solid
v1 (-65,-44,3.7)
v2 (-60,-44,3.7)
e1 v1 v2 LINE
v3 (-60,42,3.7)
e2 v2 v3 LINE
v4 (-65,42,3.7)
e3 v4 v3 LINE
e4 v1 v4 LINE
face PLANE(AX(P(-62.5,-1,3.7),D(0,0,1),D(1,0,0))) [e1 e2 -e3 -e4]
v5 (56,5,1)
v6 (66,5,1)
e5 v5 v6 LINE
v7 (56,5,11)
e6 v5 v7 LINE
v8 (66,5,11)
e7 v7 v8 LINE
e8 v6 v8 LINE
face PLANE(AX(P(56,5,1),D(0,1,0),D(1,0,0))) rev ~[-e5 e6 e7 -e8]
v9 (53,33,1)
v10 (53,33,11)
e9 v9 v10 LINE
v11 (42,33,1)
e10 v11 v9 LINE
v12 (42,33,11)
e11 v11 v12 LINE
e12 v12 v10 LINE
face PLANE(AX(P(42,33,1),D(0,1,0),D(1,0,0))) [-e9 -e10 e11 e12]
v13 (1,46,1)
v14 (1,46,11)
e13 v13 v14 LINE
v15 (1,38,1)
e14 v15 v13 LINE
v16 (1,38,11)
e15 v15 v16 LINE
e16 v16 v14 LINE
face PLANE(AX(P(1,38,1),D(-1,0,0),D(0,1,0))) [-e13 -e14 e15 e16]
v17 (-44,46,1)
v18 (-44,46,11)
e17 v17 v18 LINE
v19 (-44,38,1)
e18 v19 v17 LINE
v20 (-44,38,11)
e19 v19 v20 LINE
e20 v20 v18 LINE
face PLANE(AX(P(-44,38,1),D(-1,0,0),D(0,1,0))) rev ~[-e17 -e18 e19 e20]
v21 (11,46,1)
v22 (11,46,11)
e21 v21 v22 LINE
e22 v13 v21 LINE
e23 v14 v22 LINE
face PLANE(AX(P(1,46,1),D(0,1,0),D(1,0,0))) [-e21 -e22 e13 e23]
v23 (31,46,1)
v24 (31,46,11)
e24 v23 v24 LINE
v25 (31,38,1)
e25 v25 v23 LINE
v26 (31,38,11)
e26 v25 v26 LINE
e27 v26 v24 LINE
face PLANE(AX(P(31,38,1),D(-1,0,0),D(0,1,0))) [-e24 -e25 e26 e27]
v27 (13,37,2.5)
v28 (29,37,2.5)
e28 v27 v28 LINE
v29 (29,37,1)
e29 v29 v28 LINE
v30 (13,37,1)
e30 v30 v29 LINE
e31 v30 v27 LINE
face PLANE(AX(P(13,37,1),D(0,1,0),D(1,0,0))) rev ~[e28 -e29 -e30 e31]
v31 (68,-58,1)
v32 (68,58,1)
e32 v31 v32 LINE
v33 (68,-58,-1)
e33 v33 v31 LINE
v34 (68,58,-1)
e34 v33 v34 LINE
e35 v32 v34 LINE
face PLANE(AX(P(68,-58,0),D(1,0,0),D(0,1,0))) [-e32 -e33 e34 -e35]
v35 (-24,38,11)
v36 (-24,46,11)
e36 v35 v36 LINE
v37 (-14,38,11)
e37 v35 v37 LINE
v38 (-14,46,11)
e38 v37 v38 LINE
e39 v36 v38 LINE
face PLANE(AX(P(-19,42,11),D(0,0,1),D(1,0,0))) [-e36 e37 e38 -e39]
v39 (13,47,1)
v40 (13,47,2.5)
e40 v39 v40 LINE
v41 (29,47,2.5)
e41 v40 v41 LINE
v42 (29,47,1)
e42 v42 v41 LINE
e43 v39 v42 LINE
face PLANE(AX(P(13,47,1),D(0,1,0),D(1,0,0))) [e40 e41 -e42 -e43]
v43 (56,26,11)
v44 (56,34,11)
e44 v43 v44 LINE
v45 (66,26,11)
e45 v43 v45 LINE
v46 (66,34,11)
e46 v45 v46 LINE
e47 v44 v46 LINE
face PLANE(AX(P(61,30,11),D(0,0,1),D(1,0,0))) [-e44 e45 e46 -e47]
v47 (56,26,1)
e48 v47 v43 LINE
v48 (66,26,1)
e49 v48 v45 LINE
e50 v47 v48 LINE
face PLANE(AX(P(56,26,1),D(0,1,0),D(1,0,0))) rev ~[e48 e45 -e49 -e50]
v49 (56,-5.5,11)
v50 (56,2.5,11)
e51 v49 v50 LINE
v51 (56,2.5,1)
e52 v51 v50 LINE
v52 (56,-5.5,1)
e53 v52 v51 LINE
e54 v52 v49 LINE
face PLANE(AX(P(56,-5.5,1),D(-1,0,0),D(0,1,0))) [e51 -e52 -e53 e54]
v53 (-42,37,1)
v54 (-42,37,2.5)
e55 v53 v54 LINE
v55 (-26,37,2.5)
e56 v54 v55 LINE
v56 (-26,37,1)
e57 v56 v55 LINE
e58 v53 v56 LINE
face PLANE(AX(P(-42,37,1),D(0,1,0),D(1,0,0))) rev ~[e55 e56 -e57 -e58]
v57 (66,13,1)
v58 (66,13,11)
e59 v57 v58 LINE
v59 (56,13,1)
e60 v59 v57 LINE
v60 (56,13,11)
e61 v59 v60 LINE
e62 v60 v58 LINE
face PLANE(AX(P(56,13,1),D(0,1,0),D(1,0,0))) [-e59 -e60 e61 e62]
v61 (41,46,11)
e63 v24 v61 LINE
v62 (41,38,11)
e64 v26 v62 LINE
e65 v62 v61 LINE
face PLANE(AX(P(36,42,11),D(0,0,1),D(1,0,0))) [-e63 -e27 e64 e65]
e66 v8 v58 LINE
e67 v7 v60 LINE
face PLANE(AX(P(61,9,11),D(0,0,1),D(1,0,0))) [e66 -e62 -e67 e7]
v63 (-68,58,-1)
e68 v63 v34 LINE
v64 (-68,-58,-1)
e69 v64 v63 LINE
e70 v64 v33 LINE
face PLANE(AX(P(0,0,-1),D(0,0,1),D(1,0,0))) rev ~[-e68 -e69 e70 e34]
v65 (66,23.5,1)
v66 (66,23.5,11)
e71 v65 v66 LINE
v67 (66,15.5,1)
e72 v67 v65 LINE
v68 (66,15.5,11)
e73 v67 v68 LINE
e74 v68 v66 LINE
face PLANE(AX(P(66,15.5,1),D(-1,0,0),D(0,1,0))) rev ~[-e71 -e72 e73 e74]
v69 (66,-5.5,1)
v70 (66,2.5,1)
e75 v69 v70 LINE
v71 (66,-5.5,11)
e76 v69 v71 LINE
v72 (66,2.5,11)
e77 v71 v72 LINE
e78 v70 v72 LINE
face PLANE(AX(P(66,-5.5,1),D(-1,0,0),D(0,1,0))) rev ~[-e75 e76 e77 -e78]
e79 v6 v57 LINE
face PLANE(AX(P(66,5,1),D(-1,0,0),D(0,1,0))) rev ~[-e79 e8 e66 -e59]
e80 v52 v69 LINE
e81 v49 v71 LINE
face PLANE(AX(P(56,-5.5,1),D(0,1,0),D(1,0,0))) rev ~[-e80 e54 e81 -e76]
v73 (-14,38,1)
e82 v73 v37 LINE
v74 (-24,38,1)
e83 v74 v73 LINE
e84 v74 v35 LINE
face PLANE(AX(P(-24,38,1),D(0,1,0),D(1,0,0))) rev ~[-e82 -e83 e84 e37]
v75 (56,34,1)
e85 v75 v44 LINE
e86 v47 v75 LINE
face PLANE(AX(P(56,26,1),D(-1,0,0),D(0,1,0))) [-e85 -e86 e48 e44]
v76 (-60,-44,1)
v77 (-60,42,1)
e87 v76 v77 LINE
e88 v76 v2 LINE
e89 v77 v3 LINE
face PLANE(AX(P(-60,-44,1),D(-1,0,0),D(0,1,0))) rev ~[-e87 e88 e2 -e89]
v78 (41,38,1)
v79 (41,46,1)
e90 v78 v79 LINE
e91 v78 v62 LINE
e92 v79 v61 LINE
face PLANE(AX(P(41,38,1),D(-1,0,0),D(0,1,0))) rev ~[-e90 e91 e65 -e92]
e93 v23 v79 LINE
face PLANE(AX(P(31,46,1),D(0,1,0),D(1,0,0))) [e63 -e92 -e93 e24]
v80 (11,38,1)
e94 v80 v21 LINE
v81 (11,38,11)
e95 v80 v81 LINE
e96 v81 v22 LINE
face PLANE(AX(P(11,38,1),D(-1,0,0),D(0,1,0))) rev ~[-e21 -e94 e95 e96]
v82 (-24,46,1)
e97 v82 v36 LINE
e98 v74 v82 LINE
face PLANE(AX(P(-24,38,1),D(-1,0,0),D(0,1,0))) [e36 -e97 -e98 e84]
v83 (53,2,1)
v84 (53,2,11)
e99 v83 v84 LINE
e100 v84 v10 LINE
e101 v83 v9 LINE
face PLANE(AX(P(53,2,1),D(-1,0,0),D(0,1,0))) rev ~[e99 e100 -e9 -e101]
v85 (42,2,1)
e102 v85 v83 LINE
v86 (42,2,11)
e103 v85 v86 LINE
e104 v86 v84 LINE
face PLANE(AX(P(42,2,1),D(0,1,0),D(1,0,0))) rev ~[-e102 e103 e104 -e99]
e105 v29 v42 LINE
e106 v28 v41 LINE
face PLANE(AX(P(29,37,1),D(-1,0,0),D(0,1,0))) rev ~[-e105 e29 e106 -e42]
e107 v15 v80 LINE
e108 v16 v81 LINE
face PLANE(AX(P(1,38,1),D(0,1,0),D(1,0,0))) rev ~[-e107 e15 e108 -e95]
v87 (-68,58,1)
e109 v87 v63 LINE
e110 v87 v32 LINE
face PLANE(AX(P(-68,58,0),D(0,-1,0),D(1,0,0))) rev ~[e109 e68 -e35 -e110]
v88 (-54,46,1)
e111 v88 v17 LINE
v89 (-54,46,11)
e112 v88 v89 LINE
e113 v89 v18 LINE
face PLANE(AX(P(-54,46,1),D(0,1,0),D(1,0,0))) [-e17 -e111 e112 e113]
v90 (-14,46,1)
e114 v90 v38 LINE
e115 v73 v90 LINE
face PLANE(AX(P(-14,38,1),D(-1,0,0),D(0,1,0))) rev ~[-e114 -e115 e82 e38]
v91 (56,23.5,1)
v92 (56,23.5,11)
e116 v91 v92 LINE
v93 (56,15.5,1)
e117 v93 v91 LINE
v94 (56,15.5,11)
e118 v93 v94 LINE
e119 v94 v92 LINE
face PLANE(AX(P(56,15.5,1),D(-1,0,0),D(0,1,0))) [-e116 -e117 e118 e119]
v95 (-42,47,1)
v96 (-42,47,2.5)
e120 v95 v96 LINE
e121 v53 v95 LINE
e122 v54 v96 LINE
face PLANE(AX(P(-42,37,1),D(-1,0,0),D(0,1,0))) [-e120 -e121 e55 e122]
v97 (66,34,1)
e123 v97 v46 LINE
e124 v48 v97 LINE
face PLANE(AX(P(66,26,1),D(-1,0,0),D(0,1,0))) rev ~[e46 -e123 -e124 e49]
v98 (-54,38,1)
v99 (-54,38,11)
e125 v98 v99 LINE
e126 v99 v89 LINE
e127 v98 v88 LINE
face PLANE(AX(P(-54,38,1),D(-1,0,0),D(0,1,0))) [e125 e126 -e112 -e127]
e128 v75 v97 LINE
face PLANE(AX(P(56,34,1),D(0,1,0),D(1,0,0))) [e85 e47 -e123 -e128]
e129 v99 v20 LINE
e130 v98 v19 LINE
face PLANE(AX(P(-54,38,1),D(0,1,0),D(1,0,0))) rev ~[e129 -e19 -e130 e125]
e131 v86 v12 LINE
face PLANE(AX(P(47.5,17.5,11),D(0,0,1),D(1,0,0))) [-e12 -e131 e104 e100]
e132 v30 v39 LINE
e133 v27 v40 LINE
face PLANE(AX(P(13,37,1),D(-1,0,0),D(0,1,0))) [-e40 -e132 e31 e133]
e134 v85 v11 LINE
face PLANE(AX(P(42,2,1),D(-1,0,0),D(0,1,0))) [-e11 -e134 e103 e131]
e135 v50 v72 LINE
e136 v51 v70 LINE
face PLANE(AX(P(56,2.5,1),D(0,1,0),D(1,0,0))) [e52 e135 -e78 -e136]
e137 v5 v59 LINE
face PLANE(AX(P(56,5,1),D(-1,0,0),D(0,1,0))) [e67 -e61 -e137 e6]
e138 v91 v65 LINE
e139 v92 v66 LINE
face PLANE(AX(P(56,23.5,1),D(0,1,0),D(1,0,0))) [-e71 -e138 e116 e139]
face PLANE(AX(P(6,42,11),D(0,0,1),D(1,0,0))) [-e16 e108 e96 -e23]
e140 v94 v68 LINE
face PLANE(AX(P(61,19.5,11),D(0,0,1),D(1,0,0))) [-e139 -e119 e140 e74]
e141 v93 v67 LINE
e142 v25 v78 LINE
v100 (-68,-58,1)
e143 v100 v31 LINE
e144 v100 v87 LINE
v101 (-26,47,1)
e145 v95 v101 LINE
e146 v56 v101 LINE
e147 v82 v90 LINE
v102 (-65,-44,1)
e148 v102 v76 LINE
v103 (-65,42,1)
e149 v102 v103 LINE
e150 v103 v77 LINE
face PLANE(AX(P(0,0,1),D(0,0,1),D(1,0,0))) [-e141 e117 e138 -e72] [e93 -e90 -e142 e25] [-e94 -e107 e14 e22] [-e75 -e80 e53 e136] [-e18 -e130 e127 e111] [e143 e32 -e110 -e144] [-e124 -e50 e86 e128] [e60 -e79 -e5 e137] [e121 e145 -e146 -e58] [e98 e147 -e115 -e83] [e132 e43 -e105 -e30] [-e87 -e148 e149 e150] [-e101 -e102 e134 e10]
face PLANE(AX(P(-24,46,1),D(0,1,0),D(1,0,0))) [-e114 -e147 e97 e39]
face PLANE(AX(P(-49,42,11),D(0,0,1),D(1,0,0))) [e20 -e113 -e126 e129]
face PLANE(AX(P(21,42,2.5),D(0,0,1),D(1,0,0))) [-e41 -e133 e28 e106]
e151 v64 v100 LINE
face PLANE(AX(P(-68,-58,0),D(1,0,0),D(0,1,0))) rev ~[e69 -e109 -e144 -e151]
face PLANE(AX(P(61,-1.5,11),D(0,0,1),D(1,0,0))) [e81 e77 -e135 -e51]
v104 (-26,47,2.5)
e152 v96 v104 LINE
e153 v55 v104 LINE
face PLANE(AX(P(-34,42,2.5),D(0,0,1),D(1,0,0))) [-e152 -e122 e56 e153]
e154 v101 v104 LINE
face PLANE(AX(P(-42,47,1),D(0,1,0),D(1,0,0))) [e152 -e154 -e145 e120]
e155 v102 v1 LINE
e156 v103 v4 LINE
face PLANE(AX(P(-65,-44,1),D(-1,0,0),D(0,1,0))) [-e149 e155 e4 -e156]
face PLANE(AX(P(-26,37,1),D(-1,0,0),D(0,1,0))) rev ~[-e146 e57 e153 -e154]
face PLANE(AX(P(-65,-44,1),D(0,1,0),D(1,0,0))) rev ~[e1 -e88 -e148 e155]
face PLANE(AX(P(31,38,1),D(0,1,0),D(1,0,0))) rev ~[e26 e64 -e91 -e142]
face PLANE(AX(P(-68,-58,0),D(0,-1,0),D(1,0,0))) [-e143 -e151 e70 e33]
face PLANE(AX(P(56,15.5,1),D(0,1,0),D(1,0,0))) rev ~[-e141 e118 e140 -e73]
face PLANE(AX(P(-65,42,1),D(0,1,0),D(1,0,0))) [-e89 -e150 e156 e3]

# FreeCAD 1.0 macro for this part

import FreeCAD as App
import Part
import Sketcher


def add_polygon(sketch, points):
    """Adds a closed chain of lines whose ends are joined by coincident constraints."""
    first, n = sketch.GeometryCount, len(points)
    for a, b in zip(points, points[1:] + points[:1]):
        sketch.addGeometry(Part.LineSegment(App.Vector(*a, 0), App.Vector(*b, 0)), False)
    for i in range(n):
        sketch.addConstraint(Sketcher.Constraint("Coincident", first + i, 2, first + (i + 1) % n, 1))

doc = App.newDocument("Part")
body = doc.addObject("PartDesign::Body", "Body")

# Sketch on XY plane
sketch1 = doc.addObject("Sketcher::SketchObject", "Sketch")
body.addObject(sketch1)
sketch1.AttachmentSupport = (doc.XY_Plane, [""])
sketch1.MapMode = "FlatFace"
add_polygon(sketch1, [(-68, 58), (-68, -58), (68, -58), (68, 58)])  # lines 0-3
sketch1.addConstraint([
    Sketcher.Constraint("Vertical", 0),
    Sketcher.Constraint("Horizontal", 1),
    Sketcher.Constraint("Vertical", 2),
    Sketcher.Constraint("Horizontal", 3),
    Sketcher.Constraint("Symmetric", 0, 2, 2, 2, -1, 1),
    Sketcher.Constraint("DistanceX", 1, 1, 1, 2, 136.0),
    Sketcher.Constraint("DistanceY", 0, 2, 0, 1, 116.0),
])
pad1 = doc.addObject("PartDesign::Pad", "Pad")
body.addObject(pad1)
pad1.Profile = sketch1
pad1.Length = 2
pad1.Midplane = True

# Sketch on XY plane
sketch2 = doc.addObject("Sketcher::SketchObject", "Sketch001")
body.addObject(sketch2)
sketch2.AttachmentSupport = (doc.XY_Plane, [""])
sketch2.MapMode = "FlatFace"
sketch2.AttachmentOffset = App.Placement(App.Vector(0, 0, 1), App.Rotation())
add_polygon(sketch2, [(42, 33), (42, 2), (53, 2), (53, 33)])  # lines 0-3
add_polygon(sketch2, [(13, 47), (13, 37), (29, 37), (29, 47)])  # lines 4-7
add_polygon(sketch2, [(-42, 47), (-42, 37), (-26, 37), (-26, 47)])  # lines 8-11
add_polygon(sketch2, [(-65, 42), (-65, -44), (-60, -44), (-60, 42)])  # lines 12-15
add_polygon(sketch2, [(-54, 46), (-54, 38), (-44, 38), (-44, 46)])  # lines 16-19
add_polygon(sketch2, [(-24, 46), (-24, 38), (-14, 38), (-14, 46)])  # lines 20-23
add_polygon(sketch2, [(1, 46), (1, 38), (11, 38), (11, 46)])  # lines 24-27
add_polygon(sketch2, [(31, 46), (31, 38), (41, 38), (41, 46)])  # lines 28-31
add_polygon(sketch2, [(56, 34), (56, 26), (66, 26), (66, 34)])  # lines 32-35
add_polygon(sketch2, [(56, 23.5), (56, 15.5), (66, 15.5), (66, 23.5)])  # lines 36-39
add_polygon(sketch2, [(56, 13), (56, 5), (66, 5), (66, 13)])  # lines 40-43
add_polygon(sketch2, [(56, 2.5), (56, -5.5), (66, -5.5), (66, 2.5)])  # lines 44-47
sketch2.addConstraint([
    Sketcher.Constraint("Vertical", 0),
    Sketcher.Constraint("Horizontal", 1),
    Sketcher.Constraint("Vertical", 2),
    Sketcher.Constraint("Horizontal", 3),
    Sketcher.Constraint("Vertical", 4),
    Sketcher.Constraint("Horizontal", 5),
    Sketcher.Constraint("Vertical", 6),
    Sketcher.Constraint("Horizontal", 7),
    Sketcher.Constraint("Vertical", 8),
    Sketcher.Constraint("Horizontal", 9),
    Sketcher.Constraint("Vertical", 10),
    Sketcher.Constraint("Horizontal", 11),
    Sketcher.Constraint("Vertical", 12),
    Sketcher.Constraint("Horizontal", 13),
    Sketcher.Constraint("Vertical", 14),
    Sketcher.Constraint("Horizontal", 15),
    Sketcher.Constraint("Vertical", 16),
    Sketcher.Constraint("Horizontal", 17),
    Sketcher.Constraint("Vertical", 18),
    Sketcher.Constraint("Horizontal", 19),
    Sketcher.Constraint("Vertical", 20),
    Sketcher.Constraint("Horizontal", 21),
    Sketcher.Constraint("Vertical", 22),
    Sketcher.Constraint("Horizontal", 23),
    Sketcher.Constraint("Vertical", 24),
    Sketcher.Constraint("Horizontal", 25),
    Sketcher.Constraint("Vertical", 26),
    Sketcher.Constraint("Horizontal", 27),
    Sketcher.Constraint("Vertical", 28),
    Sketcher.Constraint("Horizontal", 29),
    Sketcher.Constraint("Vertical", 30),
    Sketcher.Constraint("Horizontal", 31),
    Sketcher.Constraint("Vertical", 32),
    Sketcher.Constraint("Horizontal", 33),
    Sketcher.Constraint("Vertical", 34),
    Sketcher.Constraint("Horizontal", 35),
    Sketcher.Constraint("Vertical", 36),
    Sketcher.Constraint("Horizontal", 37),
    Sketcher.Constraint("Vertical", 38),
    Sketcher.Constraint("Horizontal", 39),
    Sketcher.Constraint("Vertical", 40),
    Sketcher.Constraint("Horizontal", 41),
    Sketcher.Constraint("Vertical", 42),
    Sketcher.Constraint("Horizontal", 43),
    Sketcher.Constraint("Vertical", 44),
    Sketcher.Constraint("Horizontal", 45),
    Sketcher.Constraint("Vertical", 46),
    Sketcher.Constraint("Horizontal", 47),
    Sketcher.Constraint("Horizontal", 5, 2, 8, 2),
    Sketcher.Constraint("Horizontal", 7, 2, 10, 2),
    Sketcher.Constraint("Horizontal", 17, 2, 20, 2),
    Sketcher.Constraint("Horizontal", 19, 2, 22, 2),
    Sketcher.Constraint("Horizontal", 21, 2, 24, 2),
    Sketcher.Constraint("Horizontal", 23, 2, 26, 2),
    Sketcher.Constraint("Horizontal", 25, 2, 28, 2),
    Sketcher.Constraint("Horizontal", 27, 2, 30, 2),
    Sketcher.Constraint("Vertical", 35, 2, 36, 2),
    Sketcher.Constraint("Vertical", 34, 2, 37, 2),
    Sketcher.Constraint("Vertical", 39, 2, 40, 2),
    Sketcher.Constraint("Vertical", 38, 2, 41, 2),
    Sketcher.Constraint("Vertical", 43, 2, 44, 2),
    Sketcher.Constraint("Vertical", 42, 2, 45, 2),
    Sketcher.Constraint("Equal", 7, 9),
    Sketcher.Constraint("Equal", 19, 21),
    Sketcher.Constraint("Equal", 23, 25),
    Sketcher.Constraint("Equal", 27, 29),
    Sketcher.Constraint("Equal", 31, 33),
    Sketcher.Constraint("Equal", 47, 4),
    Sketcher.Constraint("Equal", 30, 32),
    Sketcher.Constraint("Equal", 34, 36),
    Sketcher.Constraint("Equal", 38, 40),
    Sketcher.Constraint("Equal", 42, 44),
    Sketcher.Constraint("DistanceX", 1, 1, 1, 2, 11.0),
    Sketcher.Constraint("DistanceX", 5, 1, 5, 2, 16.0),
    Sketcher.Constraint("DistanceX", 13, 1, 13, 2, 5.0),
    Sketcher.Constraint("DistanceX", 17, 1, 17, 2, 10.0),
    Sketcher.Constraint("DistanceY", 0, 2, 0, 1, 31.0),
    Sketcher.Constraint("DistanceY", 12, 2, 12, 1, 86.0),
    Sketcher.Constraint("DistanceY", 16, 2, 16, 1, 8.0),
    Sketcher.Constraint("DistanceX", -1, 1, 0, 2, 42.0),
    Sketcher.Constraint("DistanceY", -1, 1, 0, 2, 2.0),
    Sketcher.Constraint("DistanceX", -1, 1, 4, 2, 13.0),
    Sketcher.Constraint("DistanceY", -1, 1, 4, 2, 37.0),
    Sketcher.Constraint("DistanceX", 8, 2, -1, 1, 42.0),
    Sketcher.Constraint("DistanceX", 12, 2, -1, 1, 65.0),
    Sketcher.Constraint("DistanceY", 12, 2, -1, 1, 44.0),
    Sketcher.Constraint("DistanceX", 16, 2, -1, 1, 54.0),
    Sketcher.Constraint("DistanceY", -1, 1, 16, 2, 38.0),
    Sketcher.Constraint("DistanceX", 20, 2, -1, 1, 24.0),
    Sketcher.Constraint("DistanceX", -1, 1, 24, 2, 1.0),
    Sketcher.Constraint("DistanceX", -1, 1, 28, 2, 31.0),
    Sketcher.Constraint("DistanceX", -1, 1, 32, 2, 56.0),
    Sketcher.Constraint("DistanceY", -1, 1, 32, 2, 26.0),
    Sketcher.Constraint("DistanceY", -1, 1, 40, 2, 5.0),
    Sketcher.Constraint("DistanceY", -1, 1, 36, 2, 15.5),
    Sketcher.Constraint("DistanceY", 44, 2, -1, 1, 5.5),
])
pad2 = doc.addObject("PartDesign::Pad", "Pad001")
body.addObject(pad2)
pad2.Profile = sketch2
pad2.Length = 10

# Sketch on XY plane
sketch3 = doc.addObject("Sketcher::SketchObject", "Sketch002")
body.addObject(sketch3)
sketch3.AttachmentSupport = (doc.XY_Plane, [""])
sketch3.MapMode = "FlatFace"
sketch3.AttachmentOffset = App.Placement(App.Vector(0, 0, 11), App.Rotation())
add_polygon(sketch3, [(-65, 42), (-65, -44), (-60, -44), (-60, 42)])  # lines 0-3
sketch3.addConstraint([
    Sketcher.Constraint("Vertical", 0),
    Sketcher.Constraint("Horizontal", 1),
    Sketcher.Constraint("Vertical", 2),
    Sketcher.Constraint("Horizontal", 3),
    Sketcher.Constraint("DistanceX", 1, 1, 1, 2, 5.0),
    Sketcher.Constraint("DistanceY", 0, 2, 0, 1, 86.0),
    Sketcher.Constraint("DistanceX", 0, 2, -1, 1, 65.0),
    Sketcher.Constraint("DistanceY", 0, 2, -1, 1, 44.0),
])
pocket1 = doc.addObject("PartDesign::Pocket", "Pocket")
body.addObject(pocket1)
pocket1.Profile = sketch3
pocket1.Length = 7.3

# Sketch on XY plane
sketch4 = doc.addObject("Sketcher::SketchObject", "Sketch003")
body.addObject(sketch4)
sketch4.AttachmentSupport = (doc.XY_Plane, [""])
sketch4.MapMode = "FlatFace"
sketch4.AttachmentOffset = App.Placement(App.Vector(0, 0, 11), App.Rotation())
add_polygon(sketch4, [(-42, 47), (-42, 37), (-26, 37), (-26, 47)])  # lines 0-3
add_polygon(sketch4, [(13, 47), (13, 37), (29, 37), (29, 47)])  # lines 4-7
sketch4.addConstraint([
    Sketcher.Constraint("Vertical", 0),
    Sketcher.Constraint("Horizontal", 1),
    Sketcher.Constraint("Vertical", 2),
    Sketcher.Constraint("Horizontal", 3),
    Sketcher.Constraint("Vertical", 4),
    Sketcher.Constraint("Horizontal", 5),
    Sketcher.Constraint("Vertical", 6),
    Sketcher.Constraint("Horizontal", 7),
    Sketcher.Constraint("Horizontal", 1, 2, 4, 2),
    Sketcher.Constraint("Horizontal", 3, 2, 6, 2),
    Sketcher.Constraint("Equal", 3, 5),
    Sketcher.Constraint("DistanceX", 1, 1, 1, 2, 16.0),
    Sketcher.Constraint("DistanceY", 0, 2, 0, 1, 10.0),
    Sketcher.Constraint("DistanceX", 0, 2, -1, 1, 42.0),
    Sketcher.Constraint("DistanceY", -1, 1, 0, 2, 37.0),
    Sketcher.Constraint("DistanceX", -1, 1, 4, 2, 13.0),
])
pocket2 = doc.addObject("PartDesign::Pocket", "Pocket001")
body.addObject(pocket2)
pocket2.Profile = sketch4
pocket2.Length = 8.5

doc.recompute()
